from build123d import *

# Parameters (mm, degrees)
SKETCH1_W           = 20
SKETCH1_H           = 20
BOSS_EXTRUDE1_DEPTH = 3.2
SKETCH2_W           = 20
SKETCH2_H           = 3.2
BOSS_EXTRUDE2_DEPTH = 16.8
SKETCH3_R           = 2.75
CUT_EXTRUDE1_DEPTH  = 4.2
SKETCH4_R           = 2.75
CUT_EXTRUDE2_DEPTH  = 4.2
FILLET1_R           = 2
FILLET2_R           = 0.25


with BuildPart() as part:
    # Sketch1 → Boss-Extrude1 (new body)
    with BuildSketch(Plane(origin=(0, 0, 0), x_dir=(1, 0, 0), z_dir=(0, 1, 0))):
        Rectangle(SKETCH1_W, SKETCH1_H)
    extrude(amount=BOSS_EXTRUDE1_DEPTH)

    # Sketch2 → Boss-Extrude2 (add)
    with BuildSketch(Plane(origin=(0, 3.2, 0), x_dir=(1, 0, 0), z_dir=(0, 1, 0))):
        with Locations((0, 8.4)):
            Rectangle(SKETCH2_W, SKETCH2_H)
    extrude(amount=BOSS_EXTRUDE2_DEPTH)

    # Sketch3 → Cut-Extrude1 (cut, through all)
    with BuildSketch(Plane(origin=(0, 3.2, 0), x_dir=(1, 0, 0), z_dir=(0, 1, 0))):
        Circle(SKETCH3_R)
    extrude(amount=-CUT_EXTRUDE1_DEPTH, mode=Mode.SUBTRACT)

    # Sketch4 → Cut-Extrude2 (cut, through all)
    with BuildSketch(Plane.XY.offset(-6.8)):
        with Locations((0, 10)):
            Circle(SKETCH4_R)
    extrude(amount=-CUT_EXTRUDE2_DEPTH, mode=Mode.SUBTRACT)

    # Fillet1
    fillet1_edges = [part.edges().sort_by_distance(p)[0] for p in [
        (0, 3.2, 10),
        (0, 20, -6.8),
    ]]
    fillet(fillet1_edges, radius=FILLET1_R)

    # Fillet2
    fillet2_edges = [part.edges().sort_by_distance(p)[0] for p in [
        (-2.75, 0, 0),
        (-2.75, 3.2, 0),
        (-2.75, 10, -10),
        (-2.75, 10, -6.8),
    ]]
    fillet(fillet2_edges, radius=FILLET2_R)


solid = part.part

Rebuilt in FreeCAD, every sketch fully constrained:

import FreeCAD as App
import Part
import Sketcher
from FreeCAD import Vector
Q = App.Units.Quantity


def edges_at(feature, points):
    """Names of the edges that pass closest to the given points."""
    edges = feature.Shape.Edges
    near = lambda p: min(range(len(edges)), key=lambda i: edges[i].distToShape(Part.Vertex(*p))[0])
    return sorted({f"Edge{near(p) + 1}" for p in points})

doc = App.newDocument("Part")
body = doc.addObject("PartDesign::Body", "Body")

# Sketch on XZ plane
sketch1 = doc.addObject("Sketcher::SketchObject", "Sketch")
body.addObject(sketch1)
sketch1.AttachmentSupport = (doc.XZ_Plane, [""])
sketch1.MapMode = "FlatFace"
sketch1.addGeometry([
    Part.LineSegment(Vector(-10, -10, 0), Vector(-10, 10, 0)),
    Part.LineSegment(Vector(-10, 10, 0), Vector(10, 10, 0)),
    Part.LineSegment(Vector(10, 10, 0), Vector(10, -10, 0)),
    Part.LineSegment(Vector(10, -10, 0), Vector(-10, -10, 0)),
], False)
sketch1.addConstraint([
    Sketcher.Constraint("Coincident", 0, 2, 1, 1),
    Sketcher.Constraint("Coincident", 1, 2, 2, 1),
    Sketcher.Constraint("Coincident", 2, 2, 3, 1),
    Sketcher.Constraint("Coincident", 3, 2, 0, 1),
    Sketcher.Constraint("Vertical", 0),
    Sketcher.Constraint("Horizontal", 1),
    Sketcher.Constraint("Vertical", 2),
    Sketcher.Constraint("Horizontal", 3),
    Sketcher.Constraint("Symmetric", 0, 2, 2, 2, -1, 1),
    Sketcher.Constraint("Equal", 3, 0),
    Sketcher.Constraint("DistanceX", 1, 1, 1, 2, Q("20 mm")),
])
pad1 = doc.addObject("PartDesign::Pad", "Pad")
body.addObject(pad1)
pad1.Profile = sketch1
pad1.Length = 3.2
pad1.Reversed = True

# Sketch on XZ plane
sketch2 = doc.addObject("Sketcher::SketchObject", "Sketch001")
body.addObject(sketch2)
sketch2.AttachmentSupport = (doc.XZ_Plane, [""])
sketch2.MapMode = "FlatFace"
sketch2.AttachmentOffset = App.Placement(Vector(0, 0, -3.2), App.Rotation())
sketch2.addGeometry([
    Part.LineSegment(Vector(-10, -10, 0), Vector(-10, -6.8, 0)),
    Part.LineSegment(Vector(-10, -6.8, 0), Vector(10, -6.8, 0)),
    Part.LineSegment(Vector(10, -6.8, 0), Vector(10, -10, 0)),
    Part.LineSegment(Vector(10, -10, 0), Vector(-10, -10, 0)),
], False)
sketch2.addConstraint([
    Sketcher.Constraint("Coincident", 0, 2, 1, 1),
    Sketcher.Constraint("Coincident", 1, 2, 2, 1),
    Sketcher.Constraint("Coincident", 2, 2, 3, 1),
    Sketcher.Constraint("Coincident", 3, 2, 0, 1),
    Sketcher.Constraint("Vertical", 0),
    Sketcher.Constraint("Horizontal", 1),
    Sketcher.Constraint("Vertical", 2),
    Sketcher.Constraint("Horizontal", 3),
    Sketcher.Constraint("DistanceX", 1, 1, 1, 2, Q("20 mm")),
    Sketcher.Constraint("DistanceY", 0, 1, 0, 2, Q("3.2 mm")),
    Sketcher.Constraint("DistanceX", 0, 2, -1, 1, Q("10 mm")),
    Sketcher.Constraint("DistanceY", 2, 2, -1, 1, Q("10 mm")),
])
pad2 = doc.addObject("PartDesign::Pad", "Pad001")
body.addObject(pad2)
pad2.Profile = sketch2
pad2.Length = 16.8
pad2.Reversed = True

# Sketch on XZ plane
sketch3 = doc.addObject("Sketcher::SketchObject", "Sketch002")
body.addObject(sketch3)
sketch3.AttachmentSupport = (doc.XZ_Plane, [""])
sketch3.MapMode = "FlatFace"
sketch3.AttachmentOffset = App.Placement(Vector(0, 0, -3.2), App.Rotation())
sketch3.addGeometry(Part.Circle(Vector(0, 0, 0), Vector(0, 0, 1), 2.8), False)
sketch3.addConstraint([
    Sketcher.Constraint("Coincident", 0, 3, -1, 1),
    Sketcher.Constraint("Diameter", 0, Q("5.5 mm")),
])
pocket1 = doc.addObject("PartDesign::Pocket", "Pocket")
body.addObject(pocket1)
pocket1.Profile = sketch3
pocket1.Type = "ThroughAll"
pocket1.Reversed = True

# Sketch on XY plane
sketch4 = doc.addObject("Sketcher::SketchObject", "Sketch003")
body.addObject(sketch4)
sketch4.AttachmentSupport = (doc.XY_Plane, [""])
sketch4.MapMode = "FlatFace"
sketch4.AttachmentOffset = App.Placement(Vector(0, 0, -6.8), App.Rotation())
sketch4.addGeometry(Part.Circle(Vector(0, 10, 0), Vector(0, 0, 1), 2.8), False)
sketch4.addConstraint([
    Sketcher.Constraint("PointOnObject", 0, 3, -2),
    Sketcher.Constraint("Diameter", 0, Q("5.5 mm")),
    Sketcher.Constraint("DistanceY", -1, 1, 0, 3, Q("10 mm")),
])
pocket2 = doc.addObject("PartDesign::Pocket", "Pocket001")
body.addObject(pocket2)
pocket2.Profile = sketch4
pocket2.Type = "ThroughAll"
doc.recompute()

fillet = doc.addObject("PartDesign::Fillet", "Fillet")
body.addObject(fillet)
fillet.Base = (pocket2, edges_at(pocket2, [(0, 3.2, 10), (0, 20, -6.8)]))
fillet.Radius = 2
doc.recompute()

fillet2 = doc.addObject("PartDesign::Fillet", "Fillet001")
body.addObject(fillet2)
fillet2.Base = (fillet, edges_at(fillet, [
    (-2.75, 0, 0),
    (-2.75, 3.2, 0),
    (-2.75, 10, -10),
    (-2.75, 10, -6.8),
]))
fillet2.Radius = 0.25

doc.recompute()
